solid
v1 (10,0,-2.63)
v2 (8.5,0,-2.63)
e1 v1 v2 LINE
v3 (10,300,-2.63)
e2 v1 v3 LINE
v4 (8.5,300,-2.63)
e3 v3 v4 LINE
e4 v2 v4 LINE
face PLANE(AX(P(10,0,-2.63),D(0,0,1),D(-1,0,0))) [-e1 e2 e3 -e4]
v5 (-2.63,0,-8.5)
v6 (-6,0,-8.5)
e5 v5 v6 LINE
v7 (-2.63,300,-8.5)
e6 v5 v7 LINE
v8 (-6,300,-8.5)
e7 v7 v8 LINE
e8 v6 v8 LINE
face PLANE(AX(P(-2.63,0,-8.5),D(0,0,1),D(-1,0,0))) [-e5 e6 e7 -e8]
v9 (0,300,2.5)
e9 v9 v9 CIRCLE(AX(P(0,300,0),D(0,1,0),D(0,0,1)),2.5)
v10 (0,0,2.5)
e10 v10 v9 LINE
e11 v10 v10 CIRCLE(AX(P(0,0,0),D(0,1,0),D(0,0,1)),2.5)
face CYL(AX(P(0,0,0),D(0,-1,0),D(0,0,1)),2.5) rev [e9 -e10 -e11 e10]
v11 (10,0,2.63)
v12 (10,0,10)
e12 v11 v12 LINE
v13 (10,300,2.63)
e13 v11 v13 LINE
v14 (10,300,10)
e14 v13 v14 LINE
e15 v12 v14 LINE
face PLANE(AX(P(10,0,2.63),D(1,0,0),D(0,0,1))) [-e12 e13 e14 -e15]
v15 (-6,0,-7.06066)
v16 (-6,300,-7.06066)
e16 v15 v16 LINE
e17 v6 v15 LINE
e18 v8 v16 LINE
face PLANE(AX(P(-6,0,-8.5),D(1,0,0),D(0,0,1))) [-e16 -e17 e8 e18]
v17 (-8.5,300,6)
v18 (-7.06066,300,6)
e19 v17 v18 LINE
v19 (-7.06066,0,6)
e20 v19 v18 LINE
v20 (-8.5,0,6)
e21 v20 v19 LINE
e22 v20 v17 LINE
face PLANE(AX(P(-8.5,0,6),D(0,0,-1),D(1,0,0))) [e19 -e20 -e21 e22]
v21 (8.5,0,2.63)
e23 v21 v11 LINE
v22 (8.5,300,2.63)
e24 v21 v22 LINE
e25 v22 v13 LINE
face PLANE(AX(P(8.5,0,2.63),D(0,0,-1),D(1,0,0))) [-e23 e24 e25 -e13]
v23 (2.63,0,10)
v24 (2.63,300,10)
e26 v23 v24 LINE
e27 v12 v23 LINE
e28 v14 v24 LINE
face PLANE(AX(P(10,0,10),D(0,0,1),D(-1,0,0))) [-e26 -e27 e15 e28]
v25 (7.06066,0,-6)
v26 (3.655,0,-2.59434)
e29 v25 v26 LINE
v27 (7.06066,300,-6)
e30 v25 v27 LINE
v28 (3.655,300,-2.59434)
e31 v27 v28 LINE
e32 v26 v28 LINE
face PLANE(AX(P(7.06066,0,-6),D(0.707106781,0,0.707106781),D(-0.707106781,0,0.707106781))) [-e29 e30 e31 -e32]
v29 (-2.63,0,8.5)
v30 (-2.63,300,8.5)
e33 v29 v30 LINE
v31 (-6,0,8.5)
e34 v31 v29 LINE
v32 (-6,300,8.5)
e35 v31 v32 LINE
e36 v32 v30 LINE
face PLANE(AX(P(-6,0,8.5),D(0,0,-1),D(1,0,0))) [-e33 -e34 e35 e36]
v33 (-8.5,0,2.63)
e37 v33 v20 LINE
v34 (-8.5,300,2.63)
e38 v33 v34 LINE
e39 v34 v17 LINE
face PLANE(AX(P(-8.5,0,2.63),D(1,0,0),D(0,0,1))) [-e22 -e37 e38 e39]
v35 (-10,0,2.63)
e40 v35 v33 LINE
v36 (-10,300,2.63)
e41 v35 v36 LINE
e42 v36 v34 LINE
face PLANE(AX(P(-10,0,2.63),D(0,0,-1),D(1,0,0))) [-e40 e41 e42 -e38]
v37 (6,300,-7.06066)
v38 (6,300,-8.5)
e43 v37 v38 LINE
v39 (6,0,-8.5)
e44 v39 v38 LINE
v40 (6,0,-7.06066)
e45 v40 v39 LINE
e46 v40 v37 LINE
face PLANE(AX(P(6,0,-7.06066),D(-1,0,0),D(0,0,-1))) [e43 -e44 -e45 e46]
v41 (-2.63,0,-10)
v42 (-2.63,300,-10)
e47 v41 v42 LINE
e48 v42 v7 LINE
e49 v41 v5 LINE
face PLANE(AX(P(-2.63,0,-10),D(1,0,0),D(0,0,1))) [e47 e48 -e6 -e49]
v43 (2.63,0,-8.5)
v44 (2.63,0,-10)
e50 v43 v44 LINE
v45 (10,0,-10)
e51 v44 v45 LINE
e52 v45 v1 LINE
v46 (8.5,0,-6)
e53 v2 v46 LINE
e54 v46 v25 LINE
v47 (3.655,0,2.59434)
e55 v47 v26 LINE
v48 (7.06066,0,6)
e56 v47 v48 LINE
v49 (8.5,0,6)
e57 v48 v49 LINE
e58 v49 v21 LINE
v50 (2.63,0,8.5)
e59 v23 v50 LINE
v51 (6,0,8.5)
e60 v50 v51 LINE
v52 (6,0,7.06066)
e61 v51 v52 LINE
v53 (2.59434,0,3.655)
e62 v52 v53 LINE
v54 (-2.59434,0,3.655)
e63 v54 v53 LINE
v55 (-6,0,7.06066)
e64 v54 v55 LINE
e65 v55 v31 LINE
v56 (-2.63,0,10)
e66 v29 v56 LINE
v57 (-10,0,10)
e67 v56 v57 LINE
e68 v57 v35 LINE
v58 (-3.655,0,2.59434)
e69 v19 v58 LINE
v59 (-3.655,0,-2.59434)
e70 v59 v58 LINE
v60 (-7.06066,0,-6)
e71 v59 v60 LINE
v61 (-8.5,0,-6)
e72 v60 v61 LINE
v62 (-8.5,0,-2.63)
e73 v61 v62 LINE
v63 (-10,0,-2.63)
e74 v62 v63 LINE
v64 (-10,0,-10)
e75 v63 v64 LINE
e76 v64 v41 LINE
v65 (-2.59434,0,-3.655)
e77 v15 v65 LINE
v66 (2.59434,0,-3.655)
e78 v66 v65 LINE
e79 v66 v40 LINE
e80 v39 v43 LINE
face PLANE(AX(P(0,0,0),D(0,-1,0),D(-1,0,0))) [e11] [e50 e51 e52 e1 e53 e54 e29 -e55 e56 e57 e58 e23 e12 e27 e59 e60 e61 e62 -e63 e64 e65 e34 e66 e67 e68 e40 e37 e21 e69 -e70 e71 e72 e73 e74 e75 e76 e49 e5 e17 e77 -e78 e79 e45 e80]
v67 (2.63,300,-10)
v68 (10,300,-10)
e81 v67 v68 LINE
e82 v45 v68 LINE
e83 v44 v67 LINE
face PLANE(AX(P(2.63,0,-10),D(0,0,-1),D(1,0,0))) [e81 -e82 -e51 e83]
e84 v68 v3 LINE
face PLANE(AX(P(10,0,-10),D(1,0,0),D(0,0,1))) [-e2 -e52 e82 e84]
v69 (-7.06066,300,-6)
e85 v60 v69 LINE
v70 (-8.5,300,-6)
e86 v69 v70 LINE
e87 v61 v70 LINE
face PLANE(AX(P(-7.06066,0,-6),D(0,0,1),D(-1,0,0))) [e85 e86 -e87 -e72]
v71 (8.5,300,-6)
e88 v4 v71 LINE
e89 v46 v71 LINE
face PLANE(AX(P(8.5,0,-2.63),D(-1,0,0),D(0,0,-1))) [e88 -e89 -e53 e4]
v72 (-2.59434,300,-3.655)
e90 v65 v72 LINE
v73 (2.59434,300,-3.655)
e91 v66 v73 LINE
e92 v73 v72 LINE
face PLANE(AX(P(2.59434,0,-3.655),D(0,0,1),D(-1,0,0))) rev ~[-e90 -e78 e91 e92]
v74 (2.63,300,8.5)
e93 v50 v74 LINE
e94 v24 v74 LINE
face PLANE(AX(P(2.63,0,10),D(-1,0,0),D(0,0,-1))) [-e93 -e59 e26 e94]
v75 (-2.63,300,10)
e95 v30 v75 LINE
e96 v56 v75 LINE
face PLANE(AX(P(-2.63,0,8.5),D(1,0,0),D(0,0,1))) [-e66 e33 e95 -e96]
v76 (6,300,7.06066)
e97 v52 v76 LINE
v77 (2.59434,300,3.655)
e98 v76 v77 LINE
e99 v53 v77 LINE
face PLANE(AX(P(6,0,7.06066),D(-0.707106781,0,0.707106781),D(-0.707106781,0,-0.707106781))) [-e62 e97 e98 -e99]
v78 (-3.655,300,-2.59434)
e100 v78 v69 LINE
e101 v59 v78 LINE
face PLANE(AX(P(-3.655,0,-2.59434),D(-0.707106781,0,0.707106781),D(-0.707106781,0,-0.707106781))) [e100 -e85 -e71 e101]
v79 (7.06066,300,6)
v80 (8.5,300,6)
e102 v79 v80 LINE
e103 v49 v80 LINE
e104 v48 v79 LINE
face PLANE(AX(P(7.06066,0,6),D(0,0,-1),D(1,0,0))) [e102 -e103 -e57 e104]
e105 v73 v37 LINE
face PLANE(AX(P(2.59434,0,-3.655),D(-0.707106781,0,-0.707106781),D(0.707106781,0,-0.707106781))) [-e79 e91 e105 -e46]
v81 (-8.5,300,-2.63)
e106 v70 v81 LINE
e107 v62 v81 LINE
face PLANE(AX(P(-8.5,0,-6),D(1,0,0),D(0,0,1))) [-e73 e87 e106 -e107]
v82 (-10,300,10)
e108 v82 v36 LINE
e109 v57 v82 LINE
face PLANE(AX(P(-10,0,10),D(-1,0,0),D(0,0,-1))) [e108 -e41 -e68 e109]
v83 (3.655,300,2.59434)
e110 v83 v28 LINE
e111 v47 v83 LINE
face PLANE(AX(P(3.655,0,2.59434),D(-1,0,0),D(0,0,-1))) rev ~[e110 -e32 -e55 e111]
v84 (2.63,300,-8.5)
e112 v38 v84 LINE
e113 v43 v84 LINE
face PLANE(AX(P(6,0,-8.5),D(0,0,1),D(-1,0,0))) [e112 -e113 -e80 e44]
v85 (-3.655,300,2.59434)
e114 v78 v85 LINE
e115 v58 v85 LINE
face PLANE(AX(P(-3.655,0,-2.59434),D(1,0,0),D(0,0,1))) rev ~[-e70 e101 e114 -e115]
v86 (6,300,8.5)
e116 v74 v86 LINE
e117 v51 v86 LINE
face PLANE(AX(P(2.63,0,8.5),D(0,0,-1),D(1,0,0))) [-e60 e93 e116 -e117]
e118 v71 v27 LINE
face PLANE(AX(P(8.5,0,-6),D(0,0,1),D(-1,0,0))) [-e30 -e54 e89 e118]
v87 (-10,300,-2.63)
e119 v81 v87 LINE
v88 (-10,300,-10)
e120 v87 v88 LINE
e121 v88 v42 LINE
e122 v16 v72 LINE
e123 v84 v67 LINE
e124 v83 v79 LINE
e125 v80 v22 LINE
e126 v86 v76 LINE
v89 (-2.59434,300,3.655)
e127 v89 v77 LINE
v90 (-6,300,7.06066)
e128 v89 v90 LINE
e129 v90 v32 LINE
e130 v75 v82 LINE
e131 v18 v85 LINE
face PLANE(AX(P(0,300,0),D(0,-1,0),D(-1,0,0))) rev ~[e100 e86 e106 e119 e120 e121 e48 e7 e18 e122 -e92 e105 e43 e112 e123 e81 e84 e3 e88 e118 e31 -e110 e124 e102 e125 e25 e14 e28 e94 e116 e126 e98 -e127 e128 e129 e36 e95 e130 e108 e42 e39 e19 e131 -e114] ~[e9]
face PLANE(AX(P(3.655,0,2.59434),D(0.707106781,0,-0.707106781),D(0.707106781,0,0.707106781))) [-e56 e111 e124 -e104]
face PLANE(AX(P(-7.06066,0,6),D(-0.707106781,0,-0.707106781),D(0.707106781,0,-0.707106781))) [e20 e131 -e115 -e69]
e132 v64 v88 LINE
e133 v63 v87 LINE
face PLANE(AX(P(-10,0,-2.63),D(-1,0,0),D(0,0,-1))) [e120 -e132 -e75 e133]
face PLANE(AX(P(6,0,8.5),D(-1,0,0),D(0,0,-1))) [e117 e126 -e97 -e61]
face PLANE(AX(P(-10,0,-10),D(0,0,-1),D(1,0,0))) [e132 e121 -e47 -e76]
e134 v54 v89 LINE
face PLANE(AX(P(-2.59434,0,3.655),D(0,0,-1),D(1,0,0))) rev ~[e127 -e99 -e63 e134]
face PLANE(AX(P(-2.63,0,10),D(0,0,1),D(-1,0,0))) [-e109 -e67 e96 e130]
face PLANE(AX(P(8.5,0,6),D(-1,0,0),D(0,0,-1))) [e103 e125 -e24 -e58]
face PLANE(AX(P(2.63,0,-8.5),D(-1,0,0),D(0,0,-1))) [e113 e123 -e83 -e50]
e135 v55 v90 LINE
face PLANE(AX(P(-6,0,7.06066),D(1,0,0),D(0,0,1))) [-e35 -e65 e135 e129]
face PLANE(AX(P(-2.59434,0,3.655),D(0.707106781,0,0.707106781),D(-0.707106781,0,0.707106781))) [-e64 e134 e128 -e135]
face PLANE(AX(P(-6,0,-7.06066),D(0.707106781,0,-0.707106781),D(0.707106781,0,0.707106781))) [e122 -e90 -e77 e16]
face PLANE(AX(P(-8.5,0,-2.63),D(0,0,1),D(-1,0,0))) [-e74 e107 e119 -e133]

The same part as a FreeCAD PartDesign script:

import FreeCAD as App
import Part
import Sketcher

V = App.Vector

doc = App.newDocument("Part")
body = doc.addObject("PartDesign::Body", "Body")

# Sketch on XZ plane
sketch1 = doc.addObject("Sketcher::SketchObject", "Sketch")
body.addObject(sketch1)
sketch1.AttachmentSupport = (doc.XZ_Plane, [""])
sketch1.MapMode = "FlatFace"
sketch1.addGeometry([
    Part.LineSegment(V(6, -7.1, 0), V(2.6, -3.7, 0)),  # 0
    Part.LineSegment(V(2.6, -3.7, 0), V(-2.6, -3.7, 0)),  # 1
    Part.LineSegment(V(-2.6, -3.7, 0), V(-6, -7.1, 0)),  # 2
    Part.LineSegment(V(-6, -7.1, 0), V(-6, -8.5, 0)),  # 3
    Part.LineSegment(V(-6, -8.5, 0), V(-2.6, -8.5, 0)),  # 4
    Part.LineSegment(V(-2.6, -8.5, 0), V(-2.6, -10, 0)),  # 5
    Part.LineSegment(V(-2.6, -10, 0), V(-10, -10, 0)),  # 6
    Part.LineSegment(V(-10, -10, 0), V(-10, -2.6, 0)),  # 7
    Part.LineSegment(V(-10, -2.6, 0), V(-8.5, -2.6, 0)),  # 8
    Part.LineSegment(V(-8.5, -2.6, 0), V(-8.5, -6, 0)),  # 9
    Part.LineSegment(V(-8.5, -6, 0), V(-7.1, -6, 0)),  # 10
    Part.LineSegment(V(-7.1, -6, 0), V(-3.7, -2.6, 0)),  # 11
    Part.LineSegment(V(-3.7, -2.6, 0), V(-3.7, 2.6, 0)),  # 12
    Part.LineSegment(V(-3.7, 2.6, 0), V(-7.1, 6, 0)),  # 13
    Part.LineSegment(V(-7.1, 6, 0), V(-8.5, 6, 0)),  # 14
    Part.LineSegment(V(-8.5, 6, 0), V(-8.5, 2.6, 0)),  # 15
    Part.LineSegment(V(-8.5, 2.6, 0), V(-10, 2.6, 0)),  # 16
    Part.LineSegment(V(-10, 2.6, 0), V(-10, 10, 0)),  # 17
    Part.LineSegment(V(-10, 10, 0), V(-2.6, 10, 0)),  # 18
    Part.LineSegment(V(-2.6, 10, 0), V(-2.6, 8.5, 0)),  # 19
    Part.LineSegment(V(-2.6, 8.5, 0), V(-6, 8.5, 0)),  # 20
    Part.LineSegment(V(-6, 8.5, 0), V(-6, 7.1, 0)),  # 21
    Part.LineSegment(V(-6, 7.1, 0), V(-2.6, 3.7, 0)),  # 22
    Part.LineSegment(V(-2.6, 3.7, 0), V(2.6, 3.7, 0)),  # 23
    Part.LineSegment(V(2.6, 3.7, 0), V(6, 7.1, 0)),  # 24
    Part.LineSegment(V(6, 7.1, 0), V(6, 8.5, 0)),  # 25
    Part.LineSegment(V(6, 8.5, 0), V(2.6, 8.5, 0)),  # 26
    Part.LineSegment(V(2.6, 8.5, 0), V(2.6, 10, 0)),  # 27
    Part.LineSegment(V(2.6, 10, 0), V(10, 10, 0)),  # 28
    Part.LineSegment(V(10, 10, 0), V(10, 2.6, 0)),  # 29
    Part.LineSegment(V(10, 2.6, 0), V(8.5, 2.6, 0)),  # 30
    Part.LineSegment(V(8.5, 2.6, 0), V(8.5, 6, 0)),  # 31
    Part.LineSegment(V(8.5, 6, 0), V(7.1, 6, 0)),  # 32
    Part.LineSegment(V(7.1, 6, 0), V(3.7, 2.6, 0)),  # 33
    Part.LineSegment(V(3.7, 2.6, 0), V(3.7, -2.6, 0)),  # 34
    Part.LineSegment(V(3.7, -2.6, 0), V(7.1, -6, 0)),  # 35
    Part.LineSegment(V(7.1, -6, 0), V(8.5, -6, 0)),  # 36
    Part.LineSegment(V(8.5, -6, 0), V(8.5, -2.6, 0)),  # 37
    Part.LineSegment(V(8.5, -2.6, 0), V(10, -2.6, 0)),  # 38
    Part.LineSegment(V(10, -2.6, 0), V(10, -10, 0)),  # 39
    Part.LineSegment(V(10, -10, 0), V(2.6, -10, 0)),  # 40
    Part.LineSegment(V(2.6, -10, 0), V(2.6, -8.5, 0)),  # 41
    Part.LineSegment(V(2.6, -8.5, 0), V(6, -8.5, 0)),  # 42
    Part.LineSegment(V(6, -8.5, 0), V(6, -7.1, 0)),  # 43
    Part.Circle(V(0, 0, 0), V(0, 0, 1), 2.5),  # 44
], False)
sketch1.addConstraint([
    Sketcher.Constraint("Coincident", 0, 2, 1, 1),
    Sketcher.Constraint("Coincident", 1, 2, 2, 1),
    Sketcher.Constraint("Coincident", 2, 2, 3, 1),
    Sketcher.Constraint("Coincident", 3, 2, 4, 1),
    Sketcher.Constraint("Coincident", 4, 2, 5, 1),
    Sketcher.Constraint("Coincident", 5, 2, 6, 1),
    Sketcher.Constraint("Coincident", 6, 2, 7, 1),
    Sketcher.Constraint("Coincident", 7, 2, 8, 1),
    Sketcher.Constraint("Coincident", 8, 2, 9, 1),
    Sketcher.Constraint("Coincident", 9, 2, 10, 1),
    Sketcher.Constraint("Coincident", 10, 2, 11, 1),
    Sketcher.Constraint("Coincident", 11, 2, 12, 1),
    Sketcher.Constraint("Coincident", 12, 2, 13, 1),
    Sketcher.Constraint("Coincident", 13, 2, 14, 1),
    Sketcher.Constraint("Coincident", 14, 2, 15, 1),
    Sketcher.Constraint("Coincident", 15, 2, 16, 1),
    Sketcher.Constraint("Coincident", 16, 2, 17, 1),
    Sketcher.Constraint("Coincident", 17, 2, 18, 1),
    Sketcher.Constraint("Coincident", 18, 2, 19, 1),
    Sketcher.Constraint("Coincident", 19, 2, 20, 1),
    Sketcher.Constraint("Coincident", 20, 2, 21, 1),
    Sketcher.Constraint("Coincident", 21, 2, 22, 1),
    Sketcher.Constraint("Coincident", 22, 2, 23, 1),
    Sketcher.Constraint("Coincident", 23, 2, 24, 1),
    Sketcher.Constraint("Coincident", 24, 2, 25, 1),
    Sketcher.Constraint("Coincident", 25, 2, 26, 1),
    Sketcher.Constraint("Coincident", 26, 2, 27, 1),
    Sketcher.Constraint("Coincident", 27, 2, 28, 1),
    Sketcher.Constraint("Coincident", 28, 2, 29, 1),
    Sketcher.Constraint("Coincident", 29, 2, 30, 1),
    Sketcher.Constraint("Coincident", 30, 2, 31, 1),
    Sketcher.Constraint("Coincident", 31, 2, 32, 1),
    Sketcher.Constraint("Coincident", 32, 2, 33, 1),
    Sketcher.Constraint("Coincident", 33, 2, 34, 1),
    Sketcher.Constraint("Coincident", 34, 2, 35, 1),
    Sketcher.Constraint("Coincident", 35, 2, 36, 1),
    Sketcher.Constraint("Coincident", 36, 2, 37, 1),
    Sketcher.Constraint("Coincident", 37, 2, 38, 1),
    Sketcher.Constraint("Coincident", 38, 2, 39, 1),
    Sketcher.Constraint("Coincident", 39, 2, 40, 1),
    Sketcher.Constraint("Coincident", 40, 2, 41, 1),
    Sketcher.Constraint("Coincident", 41, 2, 42, 1),
    Sketcher.Constraint("Coincident", 42, 2, 43, 1),
    Sketcher.Constraint("Coincident", 43, 2, 0, 1),
    Sketcher.Constraint("Horizontal", 1),
    Sketcher.Constraint("Vertical", 3),
    Sketcher.Constraint("Horizontal", 4),
    Sketcher.Constraint("Vertical", 5),
    Sketcher.Constraint("Horizontal", 6),
    Sketcher.Constraint("Vertical", 7),
    Sketcher.Constraint("Horizontal", 8),
    Sketcher.Constraint("Vertical", 9),
    Sketcher.Constraint("Horizontal", 10),
    Sketcher.Constraint("Vertical", 12),
    Sketcher.Constraint("Horizontal", 14),
    Sketcher.Constraint("Vertical", 15),
    Sketcher.Constraint("Horizontal", 16),
    Sketcher.Constraint("Vertical", 17),
    Sketcher.Constraint("Horizontal", 18),
    Sketcher.Constraint("Vertical", 19),
    Sketcher.Constraint("Horizontal", 20),
    Sketcher.Constraint("Vertical", 21),
    Sketcher.Constraint("Horizontal", 23),
    Sketcher.Constraint("Vertical", 25),
    Sketcher.Constraint("Horizontal", 26),
    Sketcher.Constraint("Vertical", 27),
    Sketcher.Constraint("Horizontal", 28),
    Sketcher.Constraint("Vertical", 29),
    Sketcher.Constraint("Horizontal", 30),
    Sketcher.Constraint("Vertical", 31),
    Sketcher.Constraint("Horizontal", 32),
    Sketcher.Constraint("Vertical", 34),
    Sketcher.Constraint("Horizontal", 36),
    Sketcher.Constraint("Vertical", 37),
    Sketcher.Constraint("Horizontal", 38),
    Sketcher.Constraint("Vertical", 39),
    Sketcher.Constraint("Horizontal", 40),
    Sketcher.Constraint("Vertical", 41),
    Sketcher.Constraint("Horizontal", 42),
    Sketcher.Constraint("Vertical", 43),
    Sketcher.Constraint("Coincident", 44, 3, -1, 1),
    Sketcher.Constraint("Symmetric", 0, 2, 22, 2, -1, 1),
    Sketcher.Constraint("Symmetric", 2, 2, 24, 2, -1, 1),
    Sketcher.Constraint("Symmetric", 4, 2, 26, 2, -1, 1),
    Sketcher.Constraint("Symmetric", 6, 2, 28, 2, -1, 1),
    Sketcher.Constraint("Symmetric", 8, 2, 30, 2, -1, 1),
    Sketcher.Constraint("Symmetric", 10, 2, 32, 2, -1, 1),
    Sketcher.Constraint("Symmetric", 11, 2, 33, 2, -1, 1),
    Sketcher.Constraint("Symmetric", 13, 2, 35, 2, -1, 1),
    Sketcher.Constraint("Symmetric", 15, 2, 37, 2, -1, 1),
    Sketcher.Constraint("Symmetric", 17, 2, 39, 2, -1, 1),
    Sketcher.Constraint("Symmetric", 19, 2, 41, 2, -1, 1),
    Sketcher.Constraint("Symmetric", 21, 2, 43, 2, -1, 1),
    Sketcher.Constraint("Symmetric", 21, 2, 24, 2, -2),
    Sketcher.Constraint("Symmetric", 19, 2, 26, 2, -2),
    Sketcher.Constraint("Symmetric", 17, 2, 28, 2, -2),
    Sketcher.Constraint("Symmetric", 15, 2, 30, 2, -2),
    Sketcher.Constraint("Symmetric", 13, 2, 32, 2, -2),
    Sketcher.Constraint("Perpendicular", 0, 2),
    Sketcher.Constraint("Parallel", 2, 11),
    Sketcher.Constraint("Perpendicular", 11, 13),
    Sketcher.Constraint("Perpendicular", 22, 24),
    Sketcher.Constraint("Perpendicular", 33, 35),
    Sketcher.Constraint("Horizontal", 12, 2, 33, 2),
    Sketcher.Constraint("Equal", 36, 3),
    Sketcher.Constraint("Equal", 38, 5),
    Sketcher.Constraint("Equal", 40, 7),
    Sketcher.Constraint("Equal", 42, 9),
    Sketcher.Constraint("Equal", 23, 12),
    Sketcher.Constraint("Equal", 2, 11),
    Sketcher.Constraint("Diameter", 44, 5.0),
    Sketcher.Constraint("DistanceX", 8, 1, 8, 2, 1.5),
    Sketcher.Constraint("DistanceX", 2, 2, -1, 1, 6.0),
    Sketcher.Constraint("DistanceY", 5, 2, -1, 1, 10.0),
    Sketcher.Constraint("DistanceX", 4, 1, 4, 2, 3.37),
    Sketcher.Constraint("DistanceY", 0, 2, 23, 2, 7.31),
    Sketcher.Constraint("DistanceX", 1, 2, 1, 1, 5.18868),
])
pad1 = doc.addObject("PartDesign::Pad", "Pad")
body.addObject(pad1)
pad1.Profile = sketch1
pad1.Length = 300
pad1.Reversed = True

doc.recompute()
